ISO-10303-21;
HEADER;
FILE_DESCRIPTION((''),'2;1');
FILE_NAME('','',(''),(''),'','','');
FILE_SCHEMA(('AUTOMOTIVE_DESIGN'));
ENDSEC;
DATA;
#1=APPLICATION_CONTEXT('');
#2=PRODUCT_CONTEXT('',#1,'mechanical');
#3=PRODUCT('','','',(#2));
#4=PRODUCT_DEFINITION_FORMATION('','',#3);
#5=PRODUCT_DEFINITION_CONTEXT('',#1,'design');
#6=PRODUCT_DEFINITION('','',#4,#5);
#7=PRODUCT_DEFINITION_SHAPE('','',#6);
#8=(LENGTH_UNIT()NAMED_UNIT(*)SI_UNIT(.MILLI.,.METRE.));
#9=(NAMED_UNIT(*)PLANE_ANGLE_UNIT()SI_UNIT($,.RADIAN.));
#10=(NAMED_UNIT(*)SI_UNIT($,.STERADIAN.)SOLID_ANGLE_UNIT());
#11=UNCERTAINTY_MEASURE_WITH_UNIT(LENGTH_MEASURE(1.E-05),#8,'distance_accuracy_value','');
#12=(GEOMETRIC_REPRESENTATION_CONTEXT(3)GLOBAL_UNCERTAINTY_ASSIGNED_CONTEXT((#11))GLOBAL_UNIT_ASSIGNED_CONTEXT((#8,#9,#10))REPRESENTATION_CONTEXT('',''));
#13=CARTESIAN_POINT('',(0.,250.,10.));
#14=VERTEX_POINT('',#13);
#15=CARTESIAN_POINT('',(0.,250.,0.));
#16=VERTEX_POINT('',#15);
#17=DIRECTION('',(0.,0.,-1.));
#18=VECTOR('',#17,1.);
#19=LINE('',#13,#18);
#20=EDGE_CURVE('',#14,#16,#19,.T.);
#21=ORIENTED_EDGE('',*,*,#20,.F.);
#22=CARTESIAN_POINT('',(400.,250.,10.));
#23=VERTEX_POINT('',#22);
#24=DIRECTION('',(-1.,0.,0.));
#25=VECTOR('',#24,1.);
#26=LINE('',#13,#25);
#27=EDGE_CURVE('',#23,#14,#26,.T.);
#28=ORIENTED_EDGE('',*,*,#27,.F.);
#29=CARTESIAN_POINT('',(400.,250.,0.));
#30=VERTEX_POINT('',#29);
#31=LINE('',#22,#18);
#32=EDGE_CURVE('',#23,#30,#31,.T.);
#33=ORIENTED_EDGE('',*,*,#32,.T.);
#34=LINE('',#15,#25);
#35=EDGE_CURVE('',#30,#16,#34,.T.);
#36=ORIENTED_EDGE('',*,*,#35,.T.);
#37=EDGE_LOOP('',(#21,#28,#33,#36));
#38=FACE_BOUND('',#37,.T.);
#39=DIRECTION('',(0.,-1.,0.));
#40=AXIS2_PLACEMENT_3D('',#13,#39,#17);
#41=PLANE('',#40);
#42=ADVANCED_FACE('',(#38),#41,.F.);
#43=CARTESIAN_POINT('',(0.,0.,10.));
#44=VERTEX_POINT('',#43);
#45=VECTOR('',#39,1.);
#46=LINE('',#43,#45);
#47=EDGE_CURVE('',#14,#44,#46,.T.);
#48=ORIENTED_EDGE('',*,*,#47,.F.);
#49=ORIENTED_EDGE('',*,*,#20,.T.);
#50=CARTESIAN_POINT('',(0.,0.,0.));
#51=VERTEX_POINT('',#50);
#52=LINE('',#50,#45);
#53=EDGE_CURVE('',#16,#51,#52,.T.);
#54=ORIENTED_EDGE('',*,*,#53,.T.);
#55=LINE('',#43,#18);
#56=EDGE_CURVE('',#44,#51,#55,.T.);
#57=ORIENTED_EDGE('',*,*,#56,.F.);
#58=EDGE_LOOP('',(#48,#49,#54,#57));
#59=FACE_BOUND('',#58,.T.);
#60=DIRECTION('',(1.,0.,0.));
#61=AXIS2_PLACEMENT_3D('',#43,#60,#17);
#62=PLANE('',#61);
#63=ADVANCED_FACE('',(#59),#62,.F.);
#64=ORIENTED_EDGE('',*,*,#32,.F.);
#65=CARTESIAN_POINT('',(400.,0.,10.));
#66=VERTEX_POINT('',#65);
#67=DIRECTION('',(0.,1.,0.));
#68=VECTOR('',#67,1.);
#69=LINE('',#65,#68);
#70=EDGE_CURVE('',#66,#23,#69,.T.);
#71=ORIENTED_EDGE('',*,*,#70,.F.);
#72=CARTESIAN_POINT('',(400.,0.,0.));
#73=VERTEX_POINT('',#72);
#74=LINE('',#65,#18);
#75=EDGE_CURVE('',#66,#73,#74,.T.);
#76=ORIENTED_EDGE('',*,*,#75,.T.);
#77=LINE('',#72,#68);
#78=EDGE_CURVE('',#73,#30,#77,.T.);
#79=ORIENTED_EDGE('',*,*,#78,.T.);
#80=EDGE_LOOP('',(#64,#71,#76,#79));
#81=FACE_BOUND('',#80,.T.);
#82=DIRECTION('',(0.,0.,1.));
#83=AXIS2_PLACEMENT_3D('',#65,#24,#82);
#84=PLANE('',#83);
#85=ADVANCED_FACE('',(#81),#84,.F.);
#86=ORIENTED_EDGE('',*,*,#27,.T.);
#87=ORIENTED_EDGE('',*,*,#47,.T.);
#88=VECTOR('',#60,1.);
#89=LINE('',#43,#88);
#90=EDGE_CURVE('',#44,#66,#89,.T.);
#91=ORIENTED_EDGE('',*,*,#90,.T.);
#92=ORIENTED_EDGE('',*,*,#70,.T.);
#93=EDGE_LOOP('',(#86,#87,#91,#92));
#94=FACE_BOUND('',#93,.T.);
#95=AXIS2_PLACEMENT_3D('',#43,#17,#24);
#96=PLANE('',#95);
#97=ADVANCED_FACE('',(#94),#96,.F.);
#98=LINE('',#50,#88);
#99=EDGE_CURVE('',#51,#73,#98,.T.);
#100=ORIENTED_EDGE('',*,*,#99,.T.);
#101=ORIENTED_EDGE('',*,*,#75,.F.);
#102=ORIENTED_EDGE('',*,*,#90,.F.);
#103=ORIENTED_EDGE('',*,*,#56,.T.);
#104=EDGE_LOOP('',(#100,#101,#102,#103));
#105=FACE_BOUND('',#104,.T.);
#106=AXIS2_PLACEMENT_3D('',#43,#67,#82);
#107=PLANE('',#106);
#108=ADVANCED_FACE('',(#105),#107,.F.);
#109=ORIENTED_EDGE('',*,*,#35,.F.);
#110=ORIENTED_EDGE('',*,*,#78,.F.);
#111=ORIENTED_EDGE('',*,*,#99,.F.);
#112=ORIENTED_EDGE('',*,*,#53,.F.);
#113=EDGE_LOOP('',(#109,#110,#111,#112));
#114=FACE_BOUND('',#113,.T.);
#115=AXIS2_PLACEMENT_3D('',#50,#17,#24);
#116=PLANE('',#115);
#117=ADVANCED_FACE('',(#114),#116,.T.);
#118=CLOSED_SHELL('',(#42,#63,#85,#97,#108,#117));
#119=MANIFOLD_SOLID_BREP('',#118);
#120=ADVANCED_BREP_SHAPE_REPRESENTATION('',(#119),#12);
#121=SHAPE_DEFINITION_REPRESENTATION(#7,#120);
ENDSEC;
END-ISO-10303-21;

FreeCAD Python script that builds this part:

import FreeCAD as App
import Part
import Sketcher
from FreeCAD import Vector
Q = App.Units.Quantity


def add_polygon(sketch, points):
    """Adds a closed chain of lines whose ends are joined by coincident constraints."""
    first, n = sketch.GeometryCount, len(points)
    for a, b in zip(points, points[1:] + points[:1]):
        sketch.addGeometry(Part.LineSegment(App.Vector(*a, 0), App.Vector(*b, 0)), False)
    for i in range(n):
        sketch.addConstraint(Sketcher.Constraint("Coincident", first + i, 2, first + (i + 1) % n, 1))

doc = App.newDocument("Part")
body = doc.addObject("PartDesign::Body", "Body")

sketch1 = body.newObject("Sketcher::SketchObject", "Sketch")
sketch1.AttachmentSupport = (doc.getObject("XY_Plane"), [""])
sketch1.MapMode = "FlatFace"
add_polygon(sketch1, [(0, 250), (0, 0), (400, 0), (400, 250)])
sketch1.addConstraint(Sketcher.Constraint("Vertical", 0))
sketch1.addConstraint(Sketcher.Constraint("Horizontal", 1))
sketch1.addConstraint(Sketcher.Constraint("Vertical", 2))
sketch1.addConstraint(Sketcher.Constraint("Horizontal", 3))
sketch1.addConstraint(Sketcher.Constraint("Coincident", 0, 2, -1, 1))
sketch1.addConstraint(Sketcher.Constraint("DistanceX", 1, 1, 1, 2, Q("400 mm")))
sketch1.addConstraint(Sketcher.Constraint("DistanceY", 0, 2, 0, 1, Q("250 mm")))
pad1 = body.newObject("PartDesign::Pad", "Pad")
pad1.Profile = sketch1
pad1.Length = 10

doc.recompute()
